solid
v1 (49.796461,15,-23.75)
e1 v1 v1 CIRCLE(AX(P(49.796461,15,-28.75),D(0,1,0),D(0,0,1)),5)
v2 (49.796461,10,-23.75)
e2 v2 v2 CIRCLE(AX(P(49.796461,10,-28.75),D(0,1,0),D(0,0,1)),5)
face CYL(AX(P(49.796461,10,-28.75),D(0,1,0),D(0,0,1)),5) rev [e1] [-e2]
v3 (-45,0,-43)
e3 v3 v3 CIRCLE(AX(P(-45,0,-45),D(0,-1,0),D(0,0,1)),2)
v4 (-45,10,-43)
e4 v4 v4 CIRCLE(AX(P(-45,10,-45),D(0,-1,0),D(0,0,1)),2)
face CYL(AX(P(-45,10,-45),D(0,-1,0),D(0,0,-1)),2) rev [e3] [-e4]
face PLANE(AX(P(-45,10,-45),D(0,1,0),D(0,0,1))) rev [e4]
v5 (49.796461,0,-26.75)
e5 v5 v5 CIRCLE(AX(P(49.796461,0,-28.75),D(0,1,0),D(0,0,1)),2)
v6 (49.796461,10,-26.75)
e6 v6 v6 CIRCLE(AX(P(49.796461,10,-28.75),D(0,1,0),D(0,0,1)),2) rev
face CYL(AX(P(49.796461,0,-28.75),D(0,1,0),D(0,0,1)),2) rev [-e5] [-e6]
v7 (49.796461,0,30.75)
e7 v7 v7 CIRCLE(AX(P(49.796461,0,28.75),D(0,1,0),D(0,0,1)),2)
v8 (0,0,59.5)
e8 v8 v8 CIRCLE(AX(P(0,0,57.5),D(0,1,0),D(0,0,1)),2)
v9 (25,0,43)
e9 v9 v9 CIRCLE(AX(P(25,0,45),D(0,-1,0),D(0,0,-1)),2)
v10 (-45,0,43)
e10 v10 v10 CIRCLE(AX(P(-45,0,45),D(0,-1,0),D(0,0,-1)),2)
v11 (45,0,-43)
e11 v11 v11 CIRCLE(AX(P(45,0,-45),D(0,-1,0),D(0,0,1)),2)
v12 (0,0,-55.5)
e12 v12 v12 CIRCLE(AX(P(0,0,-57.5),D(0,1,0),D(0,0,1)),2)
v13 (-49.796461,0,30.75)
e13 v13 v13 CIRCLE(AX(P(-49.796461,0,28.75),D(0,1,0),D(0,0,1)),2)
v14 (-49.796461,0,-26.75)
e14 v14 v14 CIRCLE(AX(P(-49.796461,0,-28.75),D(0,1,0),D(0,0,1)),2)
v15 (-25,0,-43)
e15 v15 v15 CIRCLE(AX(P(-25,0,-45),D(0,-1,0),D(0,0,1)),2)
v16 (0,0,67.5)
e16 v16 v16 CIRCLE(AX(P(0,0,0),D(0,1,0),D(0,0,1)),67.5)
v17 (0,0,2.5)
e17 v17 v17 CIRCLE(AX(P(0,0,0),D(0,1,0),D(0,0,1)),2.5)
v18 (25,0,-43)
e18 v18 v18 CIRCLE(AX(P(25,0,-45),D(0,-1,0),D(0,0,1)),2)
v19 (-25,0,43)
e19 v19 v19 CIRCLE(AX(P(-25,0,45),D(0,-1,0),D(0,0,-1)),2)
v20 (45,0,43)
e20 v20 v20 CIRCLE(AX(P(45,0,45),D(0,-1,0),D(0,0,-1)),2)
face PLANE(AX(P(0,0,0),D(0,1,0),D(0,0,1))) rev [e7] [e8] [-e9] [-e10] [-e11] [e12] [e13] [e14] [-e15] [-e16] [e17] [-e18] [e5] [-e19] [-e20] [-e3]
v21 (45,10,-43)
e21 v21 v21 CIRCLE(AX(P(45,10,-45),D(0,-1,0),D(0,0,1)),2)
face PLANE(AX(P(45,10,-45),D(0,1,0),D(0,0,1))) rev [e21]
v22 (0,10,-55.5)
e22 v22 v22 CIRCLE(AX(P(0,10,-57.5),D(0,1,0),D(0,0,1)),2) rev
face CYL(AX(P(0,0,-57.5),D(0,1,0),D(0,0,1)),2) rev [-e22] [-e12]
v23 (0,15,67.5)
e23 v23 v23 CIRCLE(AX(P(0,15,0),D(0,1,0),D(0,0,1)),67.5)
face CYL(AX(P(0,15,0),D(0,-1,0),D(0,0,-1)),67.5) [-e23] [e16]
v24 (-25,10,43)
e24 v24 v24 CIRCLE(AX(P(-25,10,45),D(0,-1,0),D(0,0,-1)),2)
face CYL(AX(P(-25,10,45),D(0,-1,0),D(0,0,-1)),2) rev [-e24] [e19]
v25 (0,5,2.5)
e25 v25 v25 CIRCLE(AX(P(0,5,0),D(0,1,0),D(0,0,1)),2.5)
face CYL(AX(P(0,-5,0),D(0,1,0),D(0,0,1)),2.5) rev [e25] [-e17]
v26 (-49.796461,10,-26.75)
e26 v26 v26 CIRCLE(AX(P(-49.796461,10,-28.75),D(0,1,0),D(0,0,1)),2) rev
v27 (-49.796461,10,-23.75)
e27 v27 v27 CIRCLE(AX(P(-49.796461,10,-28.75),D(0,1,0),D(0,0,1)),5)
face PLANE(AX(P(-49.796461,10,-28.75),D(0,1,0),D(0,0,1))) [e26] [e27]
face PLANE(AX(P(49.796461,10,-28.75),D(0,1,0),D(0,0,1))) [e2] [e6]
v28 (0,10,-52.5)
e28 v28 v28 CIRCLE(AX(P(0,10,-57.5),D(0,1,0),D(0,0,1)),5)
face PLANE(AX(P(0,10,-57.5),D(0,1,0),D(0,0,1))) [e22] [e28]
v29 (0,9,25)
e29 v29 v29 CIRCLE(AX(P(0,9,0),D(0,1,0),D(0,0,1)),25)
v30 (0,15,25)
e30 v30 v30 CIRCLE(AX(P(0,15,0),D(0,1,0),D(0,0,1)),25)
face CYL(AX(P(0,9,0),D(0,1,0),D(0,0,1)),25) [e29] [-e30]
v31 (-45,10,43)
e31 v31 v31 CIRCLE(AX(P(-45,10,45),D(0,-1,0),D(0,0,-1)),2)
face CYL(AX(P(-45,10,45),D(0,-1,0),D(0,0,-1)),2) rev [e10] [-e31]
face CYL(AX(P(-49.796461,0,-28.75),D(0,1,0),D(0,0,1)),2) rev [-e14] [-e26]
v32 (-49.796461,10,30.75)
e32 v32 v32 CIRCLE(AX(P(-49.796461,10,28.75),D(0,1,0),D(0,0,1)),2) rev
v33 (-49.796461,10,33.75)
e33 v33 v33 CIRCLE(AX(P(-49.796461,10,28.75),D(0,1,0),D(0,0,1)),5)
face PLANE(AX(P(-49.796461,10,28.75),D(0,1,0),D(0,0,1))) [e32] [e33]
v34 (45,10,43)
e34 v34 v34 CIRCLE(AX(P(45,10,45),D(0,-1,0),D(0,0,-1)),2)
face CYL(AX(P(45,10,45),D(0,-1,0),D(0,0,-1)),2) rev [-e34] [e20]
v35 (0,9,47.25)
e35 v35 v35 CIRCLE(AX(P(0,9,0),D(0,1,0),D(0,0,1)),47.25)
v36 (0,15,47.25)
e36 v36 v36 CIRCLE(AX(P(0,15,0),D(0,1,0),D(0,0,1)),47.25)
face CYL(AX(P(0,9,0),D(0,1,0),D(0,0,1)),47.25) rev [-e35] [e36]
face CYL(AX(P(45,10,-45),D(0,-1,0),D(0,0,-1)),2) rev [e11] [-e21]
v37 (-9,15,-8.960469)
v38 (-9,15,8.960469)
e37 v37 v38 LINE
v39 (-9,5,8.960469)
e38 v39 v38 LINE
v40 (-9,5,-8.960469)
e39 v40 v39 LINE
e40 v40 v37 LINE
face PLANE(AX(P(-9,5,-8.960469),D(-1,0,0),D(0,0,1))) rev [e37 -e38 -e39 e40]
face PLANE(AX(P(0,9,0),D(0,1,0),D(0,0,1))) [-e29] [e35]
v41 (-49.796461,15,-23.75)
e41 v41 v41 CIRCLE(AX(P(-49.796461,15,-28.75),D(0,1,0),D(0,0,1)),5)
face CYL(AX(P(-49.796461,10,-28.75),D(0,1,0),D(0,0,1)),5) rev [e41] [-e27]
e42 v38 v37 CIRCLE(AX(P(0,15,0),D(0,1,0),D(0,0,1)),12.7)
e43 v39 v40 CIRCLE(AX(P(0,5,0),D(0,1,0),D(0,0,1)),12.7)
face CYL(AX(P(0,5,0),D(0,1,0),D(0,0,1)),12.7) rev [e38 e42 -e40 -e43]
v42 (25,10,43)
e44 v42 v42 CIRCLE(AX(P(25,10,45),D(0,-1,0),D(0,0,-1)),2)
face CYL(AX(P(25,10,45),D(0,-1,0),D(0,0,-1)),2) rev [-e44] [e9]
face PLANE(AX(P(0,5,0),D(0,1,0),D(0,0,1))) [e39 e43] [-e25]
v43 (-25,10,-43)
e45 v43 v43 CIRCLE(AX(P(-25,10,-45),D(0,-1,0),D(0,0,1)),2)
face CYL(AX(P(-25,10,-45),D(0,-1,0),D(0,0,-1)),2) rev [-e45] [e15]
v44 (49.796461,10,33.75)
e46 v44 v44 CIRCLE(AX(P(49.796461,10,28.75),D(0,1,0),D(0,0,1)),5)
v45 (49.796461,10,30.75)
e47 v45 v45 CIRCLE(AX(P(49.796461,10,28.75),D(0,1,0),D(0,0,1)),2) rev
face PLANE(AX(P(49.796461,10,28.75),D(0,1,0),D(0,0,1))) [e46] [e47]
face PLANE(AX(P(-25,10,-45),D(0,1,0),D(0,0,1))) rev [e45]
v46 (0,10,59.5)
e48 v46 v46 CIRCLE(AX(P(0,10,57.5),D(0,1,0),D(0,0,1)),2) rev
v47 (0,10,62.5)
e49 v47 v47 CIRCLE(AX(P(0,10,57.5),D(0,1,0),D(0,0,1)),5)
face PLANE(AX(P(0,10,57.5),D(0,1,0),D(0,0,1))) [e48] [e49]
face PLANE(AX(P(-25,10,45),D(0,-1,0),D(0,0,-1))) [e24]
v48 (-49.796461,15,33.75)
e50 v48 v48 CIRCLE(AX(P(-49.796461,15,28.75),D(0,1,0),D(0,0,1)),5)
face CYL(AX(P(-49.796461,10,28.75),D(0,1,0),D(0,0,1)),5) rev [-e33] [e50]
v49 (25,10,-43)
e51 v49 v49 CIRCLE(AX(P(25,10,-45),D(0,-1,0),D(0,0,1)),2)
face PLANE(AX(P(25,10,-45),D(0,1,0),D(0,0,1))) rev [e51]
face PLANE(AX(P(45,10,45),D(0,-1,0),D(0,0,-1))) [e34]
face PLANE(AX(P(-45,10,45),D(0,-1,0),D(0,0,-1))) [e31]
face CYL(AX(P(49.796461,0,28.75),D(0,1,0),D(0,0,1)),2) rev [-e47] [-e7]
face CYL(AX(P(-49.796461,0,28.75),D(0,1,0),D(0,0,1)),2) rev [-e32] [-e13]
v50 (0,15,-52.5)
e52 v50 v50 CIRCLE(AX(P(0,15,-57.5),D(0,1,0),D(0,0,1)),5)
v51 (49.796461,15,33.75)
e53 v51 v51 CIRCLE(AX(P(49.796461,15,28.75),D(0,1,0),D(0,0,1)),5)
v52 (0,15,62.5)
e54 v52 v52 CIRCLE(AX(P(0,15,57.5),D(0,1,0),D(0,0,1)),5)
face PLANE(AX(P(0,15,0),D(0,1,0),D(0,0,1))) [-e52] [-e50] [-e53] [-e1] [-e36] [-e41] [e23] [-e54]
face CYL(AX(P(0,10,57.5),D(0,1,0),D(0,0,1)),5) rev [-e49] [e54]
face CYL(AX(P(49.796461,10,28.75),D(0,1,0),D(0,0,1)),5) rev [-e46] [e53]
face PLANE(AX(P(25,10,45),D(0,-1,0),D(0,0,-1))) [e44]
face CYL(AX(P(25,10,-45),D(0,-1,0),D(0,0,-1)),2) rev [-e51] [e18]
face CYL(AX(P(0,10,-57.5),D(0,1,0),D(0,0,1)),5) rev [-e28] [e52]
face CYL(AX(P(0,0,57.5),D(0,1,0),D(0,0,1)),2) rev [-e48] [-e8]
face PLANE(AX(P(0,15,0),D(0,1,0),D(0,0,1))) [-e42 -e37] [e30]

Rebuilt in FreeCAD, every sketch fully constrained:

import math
import FreeCAD as App
import Part
import Sketcher
from FreeCAD import Vector

doc = App.newDocument("Part")
body = doc.addObject("PartDesign::Body", "Body")

# Sketch on XZ plane
sketch1 = doc.addObject("Sketcher::SketchObject", "Sketch")
body.addObject(sketch1)
sketch1.AttachmentSupport = (doc.XZ_Plane, [""])
sketch1.MapMode = "FlatFace"
sketch1.addGeometry(Part.Circle(Vector(0, 0, 0), Vector(0, 0, 1), 68), False)
sketch1.addConstraint(Sketcher.Constraint("Coincident", 0, 3, -1, 1))
sketch1.addConstraint(Sketcher.Constraint("Diameter", 0, 135.0))
pad1 = doc.addObject("PartDesign::Pad", "Pad")
body.addObject(pad1)
pad1.Profile = sketch1
pad1.Length = 15
pad1.Reversed = True

# Sketch on XZ plane
sketch2 = doc.addObject("Sketcher::SketchObject", "Sketch001")
body.addObject(sketch2)
sketch2.AttachmentSupport = (doc.XZ_Plane, [""])
sketch2.MapMode = "FlatFace"
sketch2.AttachmentOffset = App.Placement(Vector(0, 0, -15), App.Rotation())
sketch2.addGeometry(Part.Circle(Vector(0, 0, 0), Vector(0, 0, 1), 47), False)
sketch2.addGeometry(Part.Circle(Vector(0, 0, 0), Vector(0, 0, 1), 25), False)
sketch2.addConstraint(Sketcher.Constraint("Coincident", 0, 3, -1, 1))
sketch2.addConstraint(Sketcher.Constraint("Coincident", 1, 3, -1, 1))
sketch2.addConstraint(Sketcher.Constraint("Diameter", 1, 50.0))
sketch2.addConstraint(Sketcher.Constraint("Diameter", 0, 94.5))
pocket1 = doc.addObject("PartDesign::Pocket", "Pocket")
body.addObject(pocket1)
pocket1.Profile = sketch2
pocket1.Length = 6
pocket1.Reversed = True

# Sketch on XZ plane
sketch3 = doc.addObject("Sketcher::SketchObject", "Sketch002")
body.addObject(sketch3)
sketch3.AttachmentSupport = (doc.XZ_Plane, [""])
sketch3.MapMode = "FlatFace"
sketch3.AttachmentOffset = App.Placement(Vector(0, 0, -15), App.Rotation())
sketch3.addGeometry(Part.LineSegment(Vector(-9, -9, 0), Vector(-9, 9, 0)), False)
sketch3.addGeometry(Part.ArcOfCircle(Part.Circle(Vector(0, 0, 0), Vector(0, 0, 1), 13), math.radians(-135), math.radians(135)), False)
sketch3.addConstraint(Sketcher.Constraint("Coincident", 0, 1, 1, 1))
sketch3.addConstraint(Sketcher.Constraint("Coincident", 1, 2, 0, 2))
sketch3.addConstraint(Sketcher.Constraint("Vertical", 0))
sketch3.addConstraint(Sketcher.Constraint("Coincident", 1, 3, -1, 1))
sketch3.addConstraint(Sketcher.Constraint("Radius", 1, 12.7))
sketch3.addConstraint(Sketcher.Constraint("DistanceX", 0, 1, -1, 1, 9.0))
pocket2 = doc.addObject("PartDesign::Pocket", "Pocket001")
body.addObject(pocket2)
pocket2.Profile = sketch3
pocket2.Length = 10
pocket2.Reversed = True

# Sketch on XZ plane
sketch4 = doc.addObject("Sketcher::SketchObject", "Sketch003")
body.addObject(sketch4)
sketch4.AttachmentSupport = (doc.XZ_Plane, [""])
sketch4.MapMode = "FlatFace"
sketch4.AttachmentOffset = App.Placement(Vector(0, 0, -5), App.Rotation())
sketch4.addGeometry(Part.Circle(Vector(0, 0, 0), Vector(0, 0, 1), 2.5), False)
sketch4.addConstraint(Sketcher.Constraint("Coincident", 0, 3, -1, 1))
sketch4.addConstraint(Sketcher.Constraint("Diameter", 0, 5.0))
pocket3 = doc.addObject("PartDesign::Pocket", "Pocket002")
body.addObject(pocket3)
pocket3.Profile = sketch4
pocket3.Length = 10
pocket3.Reversed = True

# Sketch on XZ plane
sketch5 = doc.addObject("Sketcher::SketchObject", "Sketch004")
body.addObject(sketch5)
sketch5.AttachmentSupport = (doc.XZ_Plane, [""])
sketch5.MapMode = "FlatFace"
sketch5.AttachmentOffset = App.Placement(Vector(0, 0, -15), App.Rotation())
sketch5.addGeometry(Part.Circle(Vector(0, -57.5, 0), Vector(0, 0, 1), 2), False)
sketch5.addGeometry(Part.Circle(Vector(49.8, -28.8, 0), Vector(0, 0, 1), 2), False)
sketch5.addGeometry(Part.Circle(Vector(49.8, 28.8, 0), Vector(0, 0, 1), 2), False)
sketch5.addGeometry(Part.Circle(Vector(0, 57.5, 0), Vector(0, 0, 1), 2), False)
sketch5.addGeometry(Part.Circle(Vector(-49.8, 28.8, 0), Vector(0, 0, 1), 2), False)
sketch5.addGeometry(Part.Circle(Vector(-49.8, -28.8, 0), Vector(0, 0, 1), 2), False)
sketch5.addConstraint(Sketcher.Constraint("Equal", 0, 1))
sketch5.addConstraint(Sketcher.Constraint("Equal", 1, 2))
sketch5.addConstraint(Sketcher.Constraint("Equal", 2, 3))
sketch5.addConstraint(Sketcher.Constraint("Equal", 3, 4))
sketch5.addConstraint(Sketcher.Constraint("Equal", 4, 5))
sketch5.addConstraint(Sketcher.Constraint("Symmetric", 0, 3, 3, 3, -1, 1))
sketch5.addConstraint(Sketcher.Constraint("Symmetric", 1, 3, 4, 3, -1, 1))
sketch5.addConstraint(Sketcher.Constraint("Symmetric", 2, 3, 5, 3, -1, 1))
sketch5.addConstraint(Sketcher.Constraint("Symmetric", 2, 3, 4, 3, -2))
sketch5.addConstraint(Sketcher.Constraint("PointOnObject", 0, 3, -2))
sketch5.addConstraint(Sketcher.Constraint("Diameter", 0, 4.0))
sketch5.addConstraint(Sketcher.Constraint("DistanceY", 0, 3, 3, 3, 115.0))
sketch5.addConstraint(Sketcher.Constraint("DistanceY", 1, 3, 2, 3, 57.5))
sketch5.addConstraint(Sketcher.Constraint("DistanceX", -1, 1, 1, 3, 49.796461))
pocket4 = doc.addObject("PartDesign::Pocket", "Pocket003")
body.addObject(pocket4)
pocket4.Profile = sketch5
pocket4.Length = 15
pocket4.Reversed = True

# Sketch on XZ plane
sketch6 = doc.addObject("Sketcher::SketchObject", "Sketch005")
body.addObject(sketch6)
sketch6.AttachmentSupport = (doc.XZ_Plane, [""])
sketch6.MapMode = "FlatFace"
sketch6.AttachmentOffset = App.Placement(Vector(0, 0, -15), App.Rotation())
sketch6.addGeometry(Part.Circle(Vector(0, -58, 0), Vector(0, 0, 1), 5), False)
sketch6.addGeometry(Part.Circle(Vector(50, -29, 0), Vector(0, 0, 1), 5), False)
sketch6.addGeometry(Part.Circle(Vector(50, 29, 0), Vector(0, 0, 1), 5), False)
sketch6.addGeometry(Part.Circle(Vector(0, 58, 0), Vector(0, 0, 1), 5), False)
sketch6.addGeometry(Part.Circle(Vector(-50, 29, 0), Vector(0, 0, 1), 5), False)
sketch6.addGeometry(Part.Circle(Vector(-50, -29, 0), Vector(0, 0, 1), 5), False)
sketch6.addConstraint(Sketcher.Constraint("Equal", 0, 1))
sketch6.addConstraint(Sketcher.Constraint("Equal", 1, 2))
sketch6.addConstraint(Sketcher.Constraint("Equal", 2, 3))
sketch6.addConstraint(Sketcher.Constraint("Equal", 3, 4))
sketch6.addConstraint(Sketcher.Constraint("Equal", 4, 5))
sketch6.addConstraint(Sketcher.Constraint("Symmetric", 0, 3, 3, 3, -1, 1))
sketch6.addConstraint(Sketcher.Constraint("Symmetric", 1, 3, 4, 3, -1, 1))
sketch6.addConstraint(Sketcher.Constraint("Symmetric", 2, 3, 5, 3, -1, 1))
sketch6.addConstraint(Sketcher.Constraint("Symmetric", 2, 3, 4, 3, -2))
sketch6.addConstraint(Sketcher.Constraint("PointOnObject", 0, 3, -2))
sketch6.addConstraint(Sketcher.Constraint("Diameter", 0, 10.0))
sketch6.addConstraint(Sketcher.Constraint("DistanceY", 0, 3, 3, 3, 115.0))
sketch6.addConstraint(Sketcher.Constraint("DistanceY", 1, 3, 2, 3, 57.5))
sketch6.addConstraint(Sketcher.Constraint("DistanceX", -1, 1, 1, 3, 49.796461))
pocket5 = doc.addObject("PartDesign::Pocket", "Pocket004")
body.addObject(pocket5)
pocket5.Profile = sketch6
pocket5.Length = 5
pocket5.Reversed = True

# Sketch on XZ plane
sketch7 = doc.addObject("Sketcher::SketchObject", "Sketch006")
body.addObject(sketch7)
sketch7.AttachmentSupport = (doc.XZ_Plane, [""])
sketch7.MapMode = "FlatFace"
sketch7.addGeometry(Part.Circle(Vector(-25, 45, 0), Vector(0, 0, 1), 2), False)
sketch7.addGeometry(Part.Circle(Vector(-45, 45, 0), Vector(0, 0, 1), 2), False)
sketch7.addGeometry(Part.Circle(Vector(25, 45, 0), Vector(0, 0, 1), 2), False)
sketch7.addGeometry(Part.Circle(Vector(45, 45, 0), Vector(0, 0, 1), 2), False)
sketch7.addGeometry(Part.Circle(Vector(45, -45, 0), Vector(0, 0, 1), 2), False)
sketch7.addGeometry(Part.Circle(Vector(25, -45, 0), Vector(0, 0, 1), 2), False)
sketch7.addGeometry(Part.Circle(Vector(-25, -45, 0), Vector(0, 0, 1), 2), False)
sketch7.addGeometry(Part.Circle(Vector(-45, -45, 0), Vector(0, 0, 1), 2), False)
sketch7.addConstraint(Sketcher.Constraint("Equal", 0, 1))
sketch7.addConstraint(Sketcher.Constraint("Equal", 1, 2))
sketch7.addConstraint(Sketcher.Constraint("Equal", 2, 3))
sketch7.addConstraint(Sketcher.Constraint("Equal", 3, 4))
sketch7.addConstraint(Sketcher.Constraint("Equal", 4, 5))
sketch7.addConstraint(Sketcher.Constraint("Equal", 5, 6))
sketch7.addConstraint(Sketcher.Constraint("Equal", 6, 7))
sketch7.addConstraint(Sketcher.Constraint("Symmetric", 1, 3, 4, 3, -1, 1))
sketch7.addConstraint(Sketcher.Constraint("Symmetric", 0, 3, 5, 3, -1, 1))
sketch7.addConstraint(Sketcher.Constraint("Symmetric", 2, 3, 6, 3, -1, 1))
sketch7.addConstraint(Sketcher.Constraint("Symmetric", 3, 3, 7, 3, -1, 1))
sketch7.addConstraint(Sketcher.Constraint("Symmetric", 0, 3, 2, 3, -2))
sketch7.addConstraint(Sketcher.Constraint("Symmetric", 1, 3, 3, 3, -2))
sketch7.addConstraint(Sketcher.Constraint("Horizontal", 0, 3, 1, 3))
sketch7.addConstraint(Sketcher.Constraint("Diameter", 0, 4.0))
sketch7.addConstraint(Sketcher.Constraint("DistanceX", 0, 3, -1, 1, 25.0))
sketch7.addConstraint(Sketcher.Constraint("DistanceY", -1, 1, 0, 3, 45.0))
sketch7.addConstraint(Sketcher.Constraint("DistanceX", 1, 3, -1, 1, 45.0))
pocket6 = doc.addObject("PartDesign::Pocket", "Pocket005")
body.addObject(pocket6)
pocket6.Profile = sketch7
pocket6.Length = 10

doc.recompute()
